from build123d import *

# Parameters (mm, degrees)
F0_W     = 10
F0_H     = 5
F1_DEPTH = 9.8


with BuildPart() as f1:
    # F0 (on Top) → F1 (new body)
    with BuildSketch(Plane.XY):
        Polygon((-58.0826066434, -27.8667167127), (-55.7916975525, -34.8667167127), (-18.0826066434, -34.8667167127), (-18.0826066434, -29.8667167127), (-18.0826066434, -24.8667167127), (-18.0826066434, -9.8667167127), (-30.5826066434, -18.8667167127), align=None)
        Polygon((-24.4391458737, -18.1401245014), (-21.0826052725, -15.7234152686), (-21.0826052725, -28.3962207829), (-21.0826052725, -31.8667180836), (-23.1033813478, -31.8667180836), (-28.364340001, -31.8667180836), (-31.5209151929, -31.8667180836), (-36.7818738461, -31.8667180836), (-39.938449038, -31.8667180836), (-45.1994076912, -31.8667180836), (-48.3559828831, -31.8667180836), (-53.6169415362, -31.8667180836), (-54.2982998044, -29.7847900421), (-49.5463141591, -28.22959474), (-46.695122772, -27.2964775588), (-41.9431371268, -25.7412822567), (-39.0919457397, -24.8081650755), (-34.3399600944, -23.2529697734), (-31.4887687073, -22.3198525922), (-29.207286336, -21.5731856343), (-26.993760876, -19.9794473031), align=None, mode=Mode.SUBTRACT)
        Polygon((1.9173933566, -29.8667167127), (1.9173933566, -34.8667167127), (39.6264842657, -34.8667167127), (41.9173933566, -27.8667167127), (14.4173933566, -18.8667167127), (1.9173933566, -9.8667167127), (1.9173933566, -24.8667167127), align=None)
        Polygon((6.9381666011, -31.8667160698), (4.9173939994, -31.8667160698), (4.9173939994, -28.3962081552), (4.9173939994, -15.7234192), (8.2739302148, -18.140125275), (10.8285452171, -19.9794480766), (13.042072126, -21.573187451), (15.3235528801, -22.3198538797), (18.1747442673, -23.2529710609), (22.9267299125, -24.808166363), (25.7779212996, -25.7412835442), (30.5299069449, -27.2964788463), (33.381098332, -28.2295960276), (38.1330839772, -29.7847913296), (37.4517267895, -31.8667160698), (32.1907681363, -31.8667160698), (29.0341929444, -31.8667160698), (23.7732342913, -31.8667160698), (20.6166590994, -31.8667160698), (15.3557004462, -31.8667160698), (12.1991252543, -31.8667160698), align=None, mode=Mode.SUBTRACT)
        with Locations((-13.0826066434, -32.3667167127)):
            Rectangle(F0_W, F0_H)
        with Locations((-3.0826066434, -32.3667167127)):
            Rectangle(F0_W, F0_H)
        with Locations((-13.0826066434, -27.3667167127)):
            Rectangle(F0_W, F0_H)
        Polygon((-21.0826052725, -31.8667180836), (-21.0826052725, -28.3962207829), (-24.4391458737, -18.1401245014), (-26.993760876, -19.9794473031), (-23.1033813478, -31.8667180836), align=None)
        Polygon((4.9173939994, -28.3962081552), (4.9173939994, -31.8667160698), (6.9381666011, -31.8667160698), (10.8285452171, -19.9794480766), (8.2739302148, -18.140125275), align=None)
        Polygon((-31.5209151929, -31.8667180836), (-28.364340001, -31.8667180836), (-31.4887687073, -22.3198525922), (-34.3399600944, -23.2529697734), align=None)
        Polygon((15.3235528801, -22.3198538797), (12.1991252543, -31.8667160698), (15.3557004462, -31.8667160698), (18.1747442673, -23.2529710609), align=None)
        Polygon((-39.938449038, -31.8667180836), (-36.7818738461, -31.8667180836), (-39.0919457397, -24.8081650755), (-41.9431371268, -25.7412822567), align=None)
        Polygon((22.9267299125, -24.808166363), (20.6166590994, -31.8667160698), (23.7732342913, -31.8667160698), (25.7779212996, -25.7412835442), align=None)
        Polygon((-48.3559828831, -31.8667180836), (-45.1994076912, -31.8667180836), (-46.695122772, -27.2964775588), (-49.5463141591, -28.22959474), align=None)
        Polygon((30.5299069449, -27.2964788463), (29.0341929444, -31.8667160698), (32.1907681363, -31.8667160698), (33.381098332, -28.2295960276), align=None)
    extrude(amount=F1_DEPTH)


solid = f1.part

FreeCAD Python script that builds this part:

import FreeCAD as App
import Part
import Sketcher

doc = App.newDocument("Part")
body = doc.addObject("PartDesign::Body", "Body")

# Sketch on XY plane
sketch1 = doc.addObject("Sketcher::SketchObject", "Sketch")
body.addObject(sketch1)
sketch1.AttachmentSupport = (doc.XY_Plane, [""])
sketch1.MapMode = "FlatFace"
sketch1.addGeometry([
    Part.LineSegment(App.Vector(-58.1, -27.9, 0), App.Vector(-55.8, -34.9, 0)),  # 0
    Part.LineSegment(App.Vector(-55.8, -34.9, 0), App.Vector(39.6, -34.9, 0)),  # 1
    Part.LineSegment(App.Vector(39.6, -34.9, 0), App.Vector(41.9, -27.9, 0)),  # 2
    Part.LineSegment(App.Vector(41.9, -27.9, 0), App.Vector(14.4, -18.9, 0)),  # 3
    Part.LineSegment(App.Vector(14.4, -18.9, 0), App.Vector(1.9, -9.9, 0)),  # 4
    Part.LineSegment(App.Vector(1.9, -9.9, 0), App.Vector(1.9, -29.9, 0)),  # 5
    Part.LineSegment(App.Vector(1.9, -29.9, 0), App.Vector(-8.1, -29.9, 0)),  # 6
    Part.LineSegment(App.Vector(-8.1, -29.9, 0), App.Vector(-8.1, -24.9, 0)),  # 7
    Part.LineSegment(App.Vector(-8.1, -24.9, 0), App.Vector(-18.1, -24.9, 0)),  # 8
    Part.LineSegment(App.Vector(-18.1, -24.9, 0), App.Vector(-18.1, -9.9, 0)),  # 9
    Part.LineSegment(App.Vector(-18.1, -9.9, 0), App.Vector(-30.6, -18.9, 0)),  # 10
    Part.LineSegment(App.Vector(-30.6, -18.9, 0), App.Vector(-58.1, -27.9, 0)),  # 11
    Part.LineSegment(App.Vector(-24.4, -18.1, 0), App.Vector(-21.1, -15.7, 0)),  # 12
    Part.LineSegment(App.Vector(-21.1, -15.7, 0), App.Vector(-21.1, -28.4, 0)),  # 13
    Part.LineSegment(App.Vector(-21.1, -28.4, 0), App.Vector(-24.4, -18.1, 0)),  # 14
    Part.LineSegment(App.Vector(-23.1, -31.9, 0), App.Vector(-28.4, -31.9, 0)),  # 15
    Part.LineSegment(App.Vector(-28.4, -31.9, 0), App.Vector(-31.5, -22.3, 0)),  # 16
    Part.LineSegment(App.Vector(-31.5, -22.3, 0), App.Vector(-29.2, -21.6, 0)),  # 17
    Part.LineSegment(App.Vector(-29.2, -21.6, 0), App.Vector(-27, -20, 0)),  # 18
    Part.LineSegment(App.Vector(-27, -20, 0), App.Vector(-23.1, -31.9, 0)),  # 19
    Part.LineSegment(App.Vector(-31.5, -31.9, 0), App.Vector(-36.8, -31.9, 0)),  # 20
    Part.LineSegment(App.Vector(-36.8, -31.9, 0), App.Vector(-39.1, -24.8, 0)),  # 21
    Part.LineSegment(App.Vector(-39.1, -24.8, 0), App.Vector(-34.3, -23.3, 0)),  # 22
    Part.LineSegment(App.Vector(-34.3, -23.3, 0), App.Vector(-31.5, -31.9, 0)),  # 23
    Part.LineSegment(App.Vector(-39.9, -31.9, 0), App.Vector(-45.2, -31.9, 0)),  # 24
    Part.LineSegment(App.Vector(-45.2, -31.9, 0), App.Vector(-46.7, -27.3, 0)),  # 25
    Part.LineSegment(App.Vector(-46.7, -27.3, 0), App.Vector(-41.9, -25.7, 0)),  # 26
    Part.LineSegment(App.Vector(-41.9, -25.7, 0), App.Vector(-39.9, -31.9, 0)),  # 27
    Part.LineSegment(App.Vector(-48.4, -31.9, 0), App.Vector(-53.6, -31.9, 0)),  # 28
    Part.LineSegment(App.Vector(-53.6, -31.9, 0), App.Vector(-54.3, -29.8, 0)),  # 29
    Part.LineSegment(App.Vector(-54.3, -29.8, 0), App.Vector(-49.5, -28.2, 0)),  # 30
    Part.LineSegment(App.Vector(-49.5, -28.2, 0), App.Vector(-48.4, -31.9, 0)),  # 31
    Part.LineSegment(App.Vector(38.1, -29.8, 0), App.Vector(37.5, -31.9, 0)),  # 32
    Part.LineSegment(App.Vector(37.5, -31.9, 0), App.Vector(32.2, -31.9, 0)),  # 33
    Part.LineSegment(App.Vector(32.2, -31.9, 0), App.Vector(33.4, -28.2, 0)),  # 34
    Part.LineSegment(App.Vector(33.4, -28.2, 0), App.Vector(38.1, -29.8, 0)),  # 35
    Part.LineSegment(App.Vector(29, -31.9, 0), App.Vector(23.8, -31.9, 0)),  # 36
    Part.LineSegment(App.Vector(23.8, -31.9, 0), App.Vector(25.8, -25.7, 0)),  # 37
    Part.LineSegment(App.Vector(25.8, -25.7, 0), App.Vector(30.5, -27.3, 0)),  # 38
    Part.LineSegment(App.Vector(30.5, -27.3, 0), App.Vector(29, -31.9, 0)),  # 39
    Part.LineSegment(App.Vector(20.6, -31.9, 0), App.Vector(15.4, -31.9, 0)),  # 40
    Part.LineSegment(App.Vector(15.4, -31.9, 0), App.Vector(18.2, -23.3, 0)),  # 41
    Part.LineSegment(App.Vector(18.2, -23.3, 0), App.Vector(22.9, -24.8, 0)),  # 42
    Part.LineSegment(App.Vector(22.9, -24.8, 0), App.Vector(20.6, -31.9, 0)),  # 43
    Part.LineSegment(App.Vector(12.2, -31.9, 0), App.Vector(6.9, -31.9, 0)),  # 44
    Part.LineSegment(App.Vector(6.9, -31.9, 0), App.Vector(10.8, -20, 0)),  # 45
    Part.LineSegment(App.Vector(10.8, -20, 0), App.Vector(13, -21.6, 0)),  # 46
    Part.LineSegment(App.Vector(13, -21.6, 0), App.Vector(15.3, -22.3, 0)),  # 47
    Part.LineSegment(App.Vector(15.3, -22.3, 0), App.Vector(12.2, -31.9, 0)),  # 48
    Part.LineSegment(App.Vector(4.9, -28.4, 0), App.Vector(4.9, -15.7, 0)),  # 49
    Part.LineSegment(App.Vector(4.9, -15.7, 0), App.Vector(8.3, -18.1, 0)),  # 50
    Part.LineSegment(App.Vector(8.3, -18.1, 0), App.Vector(4.9, -28.4, 0)),  # 51
], False)
sketch1.addConstraint([
    Sketcher.Constraint("Coincident", 0, 2, 1, 1),
    Sketcher.Constraint("Coincident", 1, 2, 2, 1),
    Sketcher.Constraint("Coincident", 2, 2, 3, 1),
    Sketcher.Constraint("Coincident", 3, 2, 4, 1),
    Sketcher.Constraint("Coincident", 4, 2, 5, 1),
    Sketcher.Constraint("Coincident", 5, 2, 6, 1),
    Sketcher.Constraint("Coincident", 6, 2, 7, 1),
    Sketcher.Constraint("Coincident", 7, 2, 8, 1),
    Sketcher.Constraint("Coincident", 8, 2, 9, 1),
    Sketcher.Constraint("Coincident", 9, 2, 10, 1),
    Sketcher.Constraint("Coincident", 10, 2, 11, 1),
    Sketcher.Constraint("Coincident", 11, 2, 0, 1),
    Sketcher.Constraint("Coincident", 12, 2, 13, 1),
    Sketcher.Constraint("Coincident", 13, 2, 14, 1),
    Sketcher.Constraint("Coincident", 14, 2, 12, 1),
    Sketcher.Constraint("Coincident", 15, 2, 16, 1),
    Sketcher.Constraint("Coincident", 16, 2, 17, 1),
    Sketcher.Constraint("Coincident", 17, 2, 18, 1),
    Sketcher.Constraint("Coincident", 18, 2, 19, 1),
    Sketcher.Constraint("Coincident", 19, 2, 15, 1),
    Sketcher.Constraint("Coincident", 20, 2, 21, 1),
    Sketcher.Constraint("Coincident", 21, 2, 22, 1),
    Sketcher.Constraint("Coincident", 22, 2, 23, 1),
    Sketcher.Constraint("Coincident", 23, 2, 20, 1),
    Sketcher.Constraint("Coincident", 24, 2, 25, 1),
    Sketcher.Constraint("Coincident", 25, 2, 26, 1),
    Sketcher.Constraint("Coincident", 26, 2, 27, 1),
    Sketcher.Constraint("Coincident", 27, 2, 24, 1),
    Sketcher.Constraint("Coincident", 28, 2, 29, 1),
    Sketcher.Constraint("Coincident", 29, 2, 30, 1),
    Sketcher.Constraint("Coincident", 30, 2, 31, 1),
    Sketcher.Constraint("Coincident", 31, 2, 28, 1),
    Sketcher.Constraint("Coincident", 32, 2, 33, 1),
    Sketcher.Constraint("Coincident", 33, 2, 34, 1),
    Sketcher.Constraint("Coincident", 34, 2, 35, 1),
    Sketcher.Constraint("Coincident", 35, 2, 32, 1),
    Sketcher.Constraint("Coincident", 36, 2, 37, 1),
    Sketcher.Constraint("Coincident", 37, 2, 38, 1),
    Sketcher.Constraint("Coincident", 38, 2, 39, 1),
    Sketcher.Constraint("Coincident", 39, 2, 36, 1),
    Sketcher.Constraint("Coincident", 40, 2, 41, 1),
    Sketcher.Constraint("Coincident", 41, 2, 42, 1),
    Sketcher.Constraint("Coincident", 42, 2, 43, 1),
    Sketcher.Constraint("Coincident", 43, 2, 40, 1),
    Sketcher.Constraint("Coincident", 44, 2, 45, 1),
    Sketcher.Constraint("Coincident", 45, 2, 46, 1),
    Sketcher.Constraint("Coincident", 46, 2, 47, 1),
    Sketcher.Constraint("Coincident", 47, 2, 48, 1),
    Sketcher.Constraint("Coincident", 48, 2, 44, 1),
    Sketcher.Constraint("Coincident", 49, 2, 50, 1),
    Sketcher.Constraint("Coincident", 50, 2, 51, 1),
    Sketcher.Constraint("Coincident", 51, 2, 49, 1),
    Sketcher.Constraint("Horizontal", 1),
    Sketcher.Constraint("Vertical", 5),
    Sketcher.Constraint("Horizontal", 6),
    Sketcher.Constraint("Vertical", 7),
    Sketcher.Constraint("Horizontal", 8),
    Sketcher.Constraint("Vertical", 9),
    Sketcher.Constraint("Vertical", 13),
    Sketcher.Constraint("Horizontal", 15),
    Sketcher.Constraint("Horizontal", 20),
    Sketcher.Constraint("Horizontal", 24),
    Sketcher.Constraint("Horizontal", 28),
    Sketcher.Constraint("Horizontal", 33),
    Sketcher.Constraint("Horizontal", 36),
    Sketcher.Constraint("Horizontal", 40),
    Sketcher.Constraint("Horizontal", 44),
    Sketcher.Constraint("Vertical", 49),
    Sketcher.Constraint("Perpendicular", 2, 3),
    Sketcher.Constraint("Perpendicular", 0, 11),
    Sketcher.Constraint("Parallel", 10, 12),
    Sketcher.Constraint("Perpendicular", 11, 14),
    Sketcher.Constraint("Parallel", 14, 16),
    Sketcher.Constraint("Perpendicular", 16, 17),
    Sketcher.Constraint("Parallel", 12, 18),
    Sketcher.Constraint("Perpendicular", 17, 19),
    Sketcher.Constraint("Parallel", 19, 21),
    Sketcher.Constraint("Perpendicular", 21, 22),
    Sketcher.Constraint("Perpendicular", 22, 23),
    Sketcher.Constraint("Parallel", 23, 25),
    Sketcher.Constraint("Perpendicular", 25, 26),
    Sketcher.Constraint("Perpendicular", 26, 27),
    Sketcher.Constraint("Parallel", 27, 29),
    Sketcher.Constraint("Perpendicular", 29, 30),
    Sketcher.Constraint("Perpendicular", 30, 31),
    Sketcher.Constraint("Perpendicular", 3, 32),
    Sketcher.Constraint("Parallel", 32, 34),
    Sketcher.Constraint("Perpendicular", 34, 35),
    Sketcher.Constraint("Perpendicular", 35, 37),
    Sketcher.Constraint("Perpendicular", 37, 38),
    Sketcher.Constraint("Perpendicular", 38, 39),
    Sketcher.Constraint("Parallel", 39, 41),
    Sketcher.Constraint("Perpendicular", 41, 42),
    Sketcher.Constraint("Perpendicular", 42, 43),
    Sketcher.Constraint("Parallel", 43, 45),
    Sketcher.Constraint("Parallel", 4, 46),
    Sketcher.Constraint("Perpendicular", 45, 47),
    Sketcher.Constraint("Perpendicular", 47, 48),
    Sketcher.Constraint("Parallel", 46, 50),
    Sketcher.Constraint("Parallel", 48, 51),
    Sketcher.Constraint("Horizontal", 4, 2, 9, 2),
    Sketcher.Constraint("Horizontal", 3, 2, 10, 2),
    Sketcher.Constraint("Horizontal", 2, 2, 11, 2),
    Sketcher.Constraint("Horizontal", 19, 2, 20, 2),
    Sketcher.Constraint("Horizontal", 23, 2, 24, 2),
    Sketcher.Constraint("Horizontal", 27, 2, 28, 2),
    Sketcher.Constraint("Horizontal", 30, 2, 34, 2),
    Sketcher.Constraint("Horizontal", 29, 2, 35, 2),
    Sketcher.Constraint("Horizontal", 33, 2, 36, 2),
    Sketcher.Constraint("Horizontal", 26, 2, 37, 2),
    Sketcher.Constraint("Horizontal", 25, 2, 38, 2),
    Sketcher.Constraint("Horizontal", 39, 2, 40, 2),
    Sketcher.Constraint("Horizontal", 22, 2, 41, 2),
    Sketcher.Constraint("Horizontal", 21, 2, 42, 2),
    Sketcher.Constraint("Horizontal", 43, 2, 44, 2),
    Sketcher.Constraint("Horizontal", 18, 2, 45, 2),
    Sketcher.Constraint("Horizontal", 17, 2, 46, 2),
    Sketcher.Constraint("Horizontal", 16, 2, 47, 2),
    Sketcher.Constraint("Horizontal", 14, 2, 50, 2),
    Sketcher.Constraint("Equal", 6, 8),
    Sketcher.Constraint("Equal", 15, 20),
    Sketcher.Constraint("Equal", 20, 24),
    Sketcher.Constraint("Equal", 24, 28),
    Sketcher.Constraint("Equal", 28, 33),
    Sketcher.Constraint("Equal", 40, 44),
    Sketcher.Constraint("DistanceX", 6, 2, 6, 1, 10.0),
    Sketcher.Constraint("DistanceY", 5, 2, 5, 1, 20.0),
    Sketcher.Constraint("DistanceY", 7, 1, 7, 2, 5.0),
    Sketcher.Constraint("Distance", 22, 5.0),
    Sketcher.Constraint("DistanceY", 1, 2, 2, 2, 7.0),
    Sketcher.Constraint("DistanceY", 2, 2, 3, 2, 9.0),
    Sketcher.Constraint("DistanceY", 3, 2, 4, 2, 9.0),
    Sketcher.Constraint("DistanceX", 4, 2, 2, 2, 40.0),
    Sketcher.Constraint("DistanceX", 12, 2, 9, 2, 2.999999),
    Sketcher.Constraint("DistanceY", 15, 2, 8, 2, 7.000001),
    Sketcher.Constraint("DistanceY", 1, 2, 32, 2, 3.000001),
    Sketcher.Constraint("DistanceX", 4, 2, 49, 2, 3.000001),
    Sketcher.Constraint("DistanceX", 3, 2, 2, 2, 27.5),
    Sketcher.Constraint("DistanceY", 49, 1, 49, 2, 12.672789),
    Sketcher.Constraint("DistanceX", 29, 2, -1, 1, 54.2983),
    Sketcher.Constraint("DistanceX", -1, 1, 34, 2, 33.381098),
    Sketcher.Constraint("DistanceX", -1, 1, 40, 2, 15.3557),
    Sketcher.Constraint("DistanceY", 12, 2, 9, 2, 5.856699),
    Sketcher.Constraint("DistanceX", 22, 2, 18, 2, 7.346199),
    Sketcher.Constraint("DistanceX", 11, 2, 24, 2, 12.883199),
    Sketcher.Constraint("DistanceX", 35, 2, 1, 2, 1.4934),
    Sketcher.Constraint("DistanceX", 45, 2, 41, 2, 7.346199),
    Sketcher.Constraint("Distance", 14, 10.79138),
    Sketcher.Constraint("Distance", 18, 2.727581),
    Sketcher.Constraint("Distance", 19, 12.507688),
    Sketcher.Constraint("Distance", 21, 7.426951),
    Sketcher.Constraint("Distance", 25, 4.808769),
    Sketcher.Constraint("Distance", 31, 3.826951),
    Sketcher.Constraint("DistanceY", 13, 2, -1, 1, 28.396221),
    Sketcher.Constraint("DistanceX", 15, 2, -1, 1, 28.36434),
    Sketcher.Constraint("DistanceX", -1, 1, 37, 2, 25.777921),
])
pad1 = doc.addObject("PartDesign::Pad", "Pad")
body.addObject(pad1)
pad1.Profile = sketch1
pad1.Length = 9.8

doc.recompute()
